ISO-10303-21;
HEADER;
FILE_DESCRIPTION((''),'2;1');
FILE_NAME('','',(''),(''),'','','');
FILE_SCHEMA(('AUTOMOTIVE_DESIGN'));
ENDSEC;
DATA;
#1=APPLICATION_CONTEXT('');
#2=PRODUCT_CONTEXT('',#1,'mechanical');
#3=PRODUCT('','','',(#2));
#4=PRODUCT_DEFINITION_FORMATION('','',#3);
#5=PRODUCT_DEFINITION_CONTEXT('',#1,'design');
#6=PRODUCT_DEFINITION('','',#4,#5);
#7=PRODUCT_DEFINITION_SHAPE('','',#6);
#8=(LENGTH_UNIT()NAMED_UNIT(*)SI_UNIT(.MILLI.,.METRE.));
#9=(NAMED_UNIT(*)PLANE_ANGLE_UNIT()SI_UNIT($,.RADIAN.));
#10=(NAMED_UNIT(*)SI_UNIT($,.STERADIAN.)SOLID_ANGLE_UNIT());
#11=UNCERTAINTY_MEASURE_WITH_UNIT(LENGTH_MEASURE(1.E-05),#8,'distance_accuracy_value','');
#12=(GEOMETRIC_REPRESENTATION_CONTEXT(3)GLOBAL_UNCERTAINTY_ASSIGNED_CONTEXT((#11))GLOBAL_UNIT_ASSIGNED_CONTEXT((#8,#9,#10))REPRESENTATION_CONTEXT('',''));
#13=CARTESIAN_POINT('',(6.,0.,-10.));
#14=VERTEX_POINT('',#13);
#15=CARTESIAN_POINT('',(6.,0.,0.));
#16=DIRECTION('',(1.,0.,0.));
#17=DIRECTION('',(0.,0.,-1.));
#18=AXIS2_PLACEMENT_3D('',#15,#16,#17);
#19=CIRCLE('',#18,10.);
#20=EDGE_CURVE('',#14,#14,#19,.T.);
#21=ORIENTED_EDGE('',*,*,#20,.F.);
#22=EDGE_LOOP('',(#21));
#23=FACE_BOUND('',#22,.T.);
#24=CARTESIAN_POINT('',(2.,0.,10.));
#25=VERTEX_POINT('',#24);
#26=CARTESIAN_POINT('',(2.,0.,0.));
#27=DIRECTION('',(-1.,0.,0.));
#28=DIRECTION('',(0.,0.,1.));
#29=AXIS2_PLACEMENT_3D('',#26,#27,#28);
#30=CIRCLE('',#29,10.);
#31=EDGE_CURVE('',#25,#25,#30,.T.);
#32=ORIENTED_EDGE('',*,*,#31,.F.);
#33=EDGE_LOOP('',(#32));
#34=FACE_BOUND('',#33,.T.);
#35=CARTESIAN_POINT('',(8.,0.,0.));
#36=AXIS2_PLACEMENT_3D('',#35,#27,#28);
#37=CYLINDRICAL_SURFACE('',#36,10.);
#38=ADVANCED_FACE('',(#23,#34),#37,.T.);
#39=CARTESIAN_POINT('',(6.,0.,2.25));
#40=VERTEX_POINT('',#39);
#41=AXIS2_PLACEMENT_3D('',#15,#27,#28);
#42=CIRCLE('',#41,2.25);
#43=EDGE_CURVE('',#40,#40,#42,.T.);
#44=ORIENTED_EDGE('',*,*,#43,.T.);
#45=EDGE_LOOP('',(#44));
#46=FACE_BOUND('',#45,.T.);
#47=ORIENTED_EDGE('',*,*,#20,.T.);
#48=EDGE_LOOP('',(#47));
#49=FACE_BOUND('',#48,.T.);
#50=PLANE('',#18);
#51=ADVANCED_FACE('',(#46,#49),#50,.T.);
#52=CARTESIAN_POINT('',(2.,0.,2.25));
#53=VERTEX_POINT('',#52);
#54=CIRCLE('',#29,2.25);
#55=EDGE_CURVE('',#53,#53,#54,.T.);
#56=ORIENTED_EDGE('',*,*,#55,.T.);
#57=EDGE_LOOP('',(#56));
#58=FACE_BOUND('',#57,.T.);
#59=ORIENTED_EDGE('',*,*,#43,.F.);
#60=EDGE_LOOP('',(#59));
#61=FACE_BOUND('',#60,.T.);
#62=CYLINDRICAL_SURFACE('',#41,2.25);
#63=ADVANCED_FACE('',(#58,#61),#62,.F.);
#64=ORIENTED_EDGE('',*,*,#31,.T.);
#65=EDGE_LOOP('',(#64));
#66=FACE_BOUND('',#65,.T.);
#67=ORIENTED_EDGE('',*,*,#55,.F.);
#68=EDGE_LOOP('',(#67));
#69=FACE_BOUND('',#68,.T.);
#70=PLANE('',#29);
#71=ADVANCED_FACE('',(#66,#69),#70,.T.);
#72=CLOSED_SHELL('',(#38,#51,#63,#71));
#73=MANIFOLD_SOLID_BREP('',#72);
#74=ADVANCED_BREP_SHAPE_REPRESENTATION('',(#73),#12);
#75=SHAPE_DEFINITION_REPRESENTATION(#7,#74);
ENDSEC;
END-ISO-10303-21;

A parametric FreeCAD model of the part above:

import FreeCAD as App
import Part
import Sketcher
from FreeCAD import Vector
Q = App.Units.Quantity

doc = App.newDocument("Part")
body = doc.addObject("PartDesign::Body", "Body")

sketch1 = body.newObject("Sketcher::SketchObject", "Sketch")
sketch1.AttachmentSupport = (doc.getObject("YZ_Plane"), [""])
sketch1.MapMode = "FlatFace"
sketch1.addGeometry(Part.Circle(Vector(0, 0, 0), Vector(0, 0, 1), 10), False)
sketch1.addConstraint([
    Sketcher.Constraint("Coincident", 0, 3, -1, 1),
    Sketcher.Constraint("Diameter", 0, Q("20 mm")),
])
pad1 = body.newObject("PartDesign::Pad", "Pad")
pad1.Profile = sketch1
pad1.Length = 8

sketch2 = body.newObject("Sketcher::SketchObject", "Sketch001")
sketch2.AttachmentSupport = (doc.getObject("YZ_Plane"), [""])
sketch2.MapMode = "FlatFace"
sketch2.AttachmentOffset = App.Placement(Vector(0, 0, 8), App.Rotation())
sketch2.addGeometry(Part.Circle(Vector(0, 0, 0), Vector(0, 0, 1), 14), False)
sketch2.addConstraint([
    Sketcher.Constraint("Coincident", 0, 3, -1, 1),
    Sketcher.Constraint("Diameter", 0, Q("27 mm")),
])
pocket1 = body.newObject("PartDesign::Pocket", "Pocket")
pocket1.Profile = sketch2
pocket1.Length = 2

sketch3 = body.newObject("Sketcher::SketchObject", "Sketch002")
sketch3.AttachmentSupport = (doc.getObject("YZ_Plane"), [""])
sketch3.MapMode = "FlatFace"
sketch3.addGeometry(Part.Circle(Vector(0, 0, 0), Vector(0, 0, 1), 14), False)
sketch3.addConstraint([
    Sketcher.Constraint("Coincident", 0, 3, -1, 1),
    Sketcher.Constraint("Diameter", 0, Q("27 mm")),
])
pocket2 = body.newObject("PartDesign::Pocket", "Pocket001")
pocket2.Profile = sketch3
pocket2.Length = 2
pocket2.Reversed = True

sketch4 = body.newObject("Sketcher::SketchObject", "Sketch003")
sketch4.AttachmentSupport = (doc.getObject("YZ_Plane"), [""])
sketch4.MapMode = "FlatFace"
sketch4.AttachmentOffset = App.Placement(Vector(0, 0, 2), App.Rotation())
sketch4.addGeometry(Part.Circle(Vector(0, 0, 0), Vector(0, 0, 1), 2.2), False)
sketch4.addConstraint([
    Sketcher.Constraint("Coincident", 0, 3, -1, 1),
    Sketcher.Constraint("Diameter", 0, Q("4.5 mm")),
])
pocket3 = body.newObject("PartDesign::Pocket", "Pocket002")
pocket3.Profile = sketch4
pocket3.Type = "ThroughAll"
pocket3.Midplane = True

doc.recompute()
